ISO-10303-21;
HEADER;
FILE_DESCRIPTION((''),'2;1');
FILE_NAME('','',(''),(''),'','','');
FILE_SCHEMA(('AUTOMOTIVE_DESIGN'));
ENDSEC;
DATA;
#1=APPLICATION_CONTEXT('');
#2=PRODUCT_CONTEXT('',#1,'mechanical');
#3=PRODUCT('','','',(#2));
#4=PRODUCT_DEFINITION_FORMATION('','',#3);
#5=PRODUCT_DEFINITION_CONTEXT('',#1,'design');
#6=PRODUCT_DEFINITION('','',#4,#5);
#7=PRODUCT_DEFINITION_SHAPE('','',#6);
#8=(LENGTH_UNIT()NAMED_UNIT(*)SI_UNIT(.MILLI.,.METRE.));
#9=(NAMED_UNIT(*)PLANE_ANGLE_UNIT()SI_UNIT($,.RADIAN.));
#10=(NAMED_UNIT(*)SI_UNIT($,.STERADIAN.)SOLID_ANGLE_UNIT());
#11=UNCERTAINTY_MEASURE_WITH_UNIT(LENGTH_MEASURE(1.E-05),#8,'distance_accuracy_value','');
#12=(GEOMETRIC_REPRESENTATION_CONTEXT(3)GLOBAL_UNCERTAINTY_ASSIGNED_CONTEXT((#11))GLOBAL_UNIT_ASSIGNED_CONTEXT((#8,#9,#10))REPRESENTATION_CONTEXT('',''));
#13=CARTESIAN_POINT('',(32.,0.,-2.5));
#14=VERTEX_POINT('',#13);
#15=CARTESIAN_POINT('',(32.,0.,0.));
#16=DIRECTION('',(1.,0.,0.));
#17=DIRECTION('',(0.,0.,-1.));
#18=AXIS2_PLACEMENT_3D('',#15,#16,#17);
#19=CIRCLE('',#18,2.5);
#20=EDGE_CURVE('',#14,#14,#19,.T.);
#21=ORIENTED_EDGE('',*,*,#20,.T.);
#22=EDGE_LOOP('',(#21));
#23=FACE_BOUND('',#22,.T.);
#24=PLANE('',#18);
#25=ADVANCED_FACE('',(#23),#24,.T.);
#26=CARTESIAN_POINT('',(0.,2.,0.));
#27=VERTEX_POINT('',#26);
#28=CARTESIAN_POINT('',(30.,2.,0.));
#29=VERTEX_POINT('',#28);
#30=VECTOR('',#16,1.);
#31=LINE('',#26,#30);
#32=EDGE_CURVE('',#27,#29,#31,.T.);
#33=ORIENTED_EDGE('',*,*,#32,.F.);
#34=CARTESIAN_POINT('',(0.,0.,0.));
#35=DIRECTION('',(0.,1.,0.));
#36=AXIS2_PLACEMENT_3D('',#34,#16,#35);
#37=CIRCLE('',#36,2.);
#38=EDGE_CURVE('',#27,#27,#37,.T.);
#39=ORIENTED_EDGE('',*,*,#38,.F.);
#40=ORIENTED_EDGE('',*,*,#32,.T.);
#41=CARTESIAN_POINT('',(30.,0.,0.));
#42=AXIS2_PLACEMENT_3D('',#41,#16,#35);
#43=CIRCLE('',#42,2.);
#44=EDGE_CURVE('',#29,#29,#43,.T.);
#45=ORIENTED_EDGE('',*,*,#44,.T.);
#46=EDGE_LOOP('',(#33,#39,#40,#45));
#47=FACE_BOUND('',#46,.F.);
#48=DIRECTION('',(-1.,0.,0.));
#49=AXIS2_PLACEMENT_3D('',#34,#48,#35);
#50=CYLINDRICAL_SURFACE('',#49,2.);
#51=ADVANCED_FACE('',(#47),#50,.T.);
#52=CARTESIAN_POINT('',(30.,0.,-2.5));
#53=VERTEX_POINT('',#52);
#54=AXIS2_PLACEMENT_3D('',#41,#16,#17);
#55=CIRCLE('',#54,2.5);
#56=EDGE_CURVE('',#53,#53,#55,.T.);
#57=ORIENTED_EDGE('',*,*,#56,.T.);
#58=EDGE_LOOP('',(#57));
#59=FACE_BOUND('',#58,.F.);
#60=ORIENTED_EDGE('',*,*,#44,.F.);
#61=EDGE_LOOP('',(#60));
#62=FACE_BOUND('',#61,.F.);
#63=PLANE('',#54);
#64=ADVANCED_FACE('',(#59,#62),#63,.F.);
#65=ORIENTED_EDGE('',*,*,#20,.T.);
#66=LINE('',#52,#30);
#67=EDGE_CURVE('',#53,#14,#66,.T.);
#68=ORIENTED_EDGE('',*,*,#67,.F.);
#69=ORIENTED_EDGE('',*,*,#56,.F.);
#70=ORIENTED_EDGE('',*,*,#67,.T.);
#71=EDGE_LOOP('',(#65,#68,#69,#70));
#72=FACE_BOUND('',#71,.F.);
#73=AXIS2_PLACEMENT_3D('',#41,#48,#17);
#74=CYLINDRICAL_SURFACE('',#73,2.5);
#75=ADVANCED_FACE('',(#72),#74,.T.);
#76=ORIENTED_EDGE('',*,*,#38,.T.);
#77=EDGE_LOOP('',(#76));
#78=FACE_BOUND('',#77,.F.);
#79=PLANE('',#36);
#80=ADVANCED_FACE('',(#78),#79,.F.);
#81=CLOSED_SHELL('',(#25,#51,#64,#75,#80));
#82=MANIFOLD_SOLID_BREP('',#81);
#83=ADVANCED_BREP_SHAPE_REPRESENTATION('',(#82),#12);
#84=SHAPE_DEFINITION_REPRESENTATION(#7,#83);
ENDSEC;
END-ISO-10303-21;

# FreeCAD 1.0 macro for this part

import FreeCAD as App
import Part
import Sketcher
from FreeCAD import Vector
Q = App.Units.Quantity

doc = App.newDocument("Part")
body = doc.addObject("PartDesign::Body", "Body")

# Sketch on YZ plane
sketch1 = body.newObject("Sketcher::SketchObject", "Sketch")
sketch1.AttachmentSupport = (doc.getObject("YZ_Plane"), [""])
sketch1.MapMode = "FlatFace"
sketch1.addGeometry(Part.Circle(Vector(0, 0, 0), Vector(0, 0, 1), 2), False)
sketch1.addConstraint([
    Sketcher.Constraint("Coincident", 0, 3, -1, 1),
    Sketcher.Constraint("Diameter", 0, Q("4 mm")),
])
pad1 = body.newObject("PartDesign::Pad", "Pad")
pad1.Profile = sketch1
pad1.Length = 30

# Sketch on YZ plane
sketch2 = body.newObject("Sketcher::SketchObject", "Sketch001")
sketch2.AttachmentSupport = (doc.getObject("YZ_Plane"), [""])
sketch2.MapMode = "FlatFace"
sketch2.AttachmentOffset = App.Placement(Vector(0, 0, 30), App.Rotation())
sketch2.addGeometry(Part.Circle(Vector(0, 0, 0), Vector(0, 0, 1), 2.5), False)
sketch2.addConstraint([
    Sketcher.Constraint("Coincident", 0, 3, -1, 1),
    Sketcher.Constraint("Diameter", 0, Q("5 mm")),
])
pad2 = body.newObject("PartDesign::Pad", "Pad001")
pad2.Profile = sketch2
pad2.Length = 2

doc.recompute()
